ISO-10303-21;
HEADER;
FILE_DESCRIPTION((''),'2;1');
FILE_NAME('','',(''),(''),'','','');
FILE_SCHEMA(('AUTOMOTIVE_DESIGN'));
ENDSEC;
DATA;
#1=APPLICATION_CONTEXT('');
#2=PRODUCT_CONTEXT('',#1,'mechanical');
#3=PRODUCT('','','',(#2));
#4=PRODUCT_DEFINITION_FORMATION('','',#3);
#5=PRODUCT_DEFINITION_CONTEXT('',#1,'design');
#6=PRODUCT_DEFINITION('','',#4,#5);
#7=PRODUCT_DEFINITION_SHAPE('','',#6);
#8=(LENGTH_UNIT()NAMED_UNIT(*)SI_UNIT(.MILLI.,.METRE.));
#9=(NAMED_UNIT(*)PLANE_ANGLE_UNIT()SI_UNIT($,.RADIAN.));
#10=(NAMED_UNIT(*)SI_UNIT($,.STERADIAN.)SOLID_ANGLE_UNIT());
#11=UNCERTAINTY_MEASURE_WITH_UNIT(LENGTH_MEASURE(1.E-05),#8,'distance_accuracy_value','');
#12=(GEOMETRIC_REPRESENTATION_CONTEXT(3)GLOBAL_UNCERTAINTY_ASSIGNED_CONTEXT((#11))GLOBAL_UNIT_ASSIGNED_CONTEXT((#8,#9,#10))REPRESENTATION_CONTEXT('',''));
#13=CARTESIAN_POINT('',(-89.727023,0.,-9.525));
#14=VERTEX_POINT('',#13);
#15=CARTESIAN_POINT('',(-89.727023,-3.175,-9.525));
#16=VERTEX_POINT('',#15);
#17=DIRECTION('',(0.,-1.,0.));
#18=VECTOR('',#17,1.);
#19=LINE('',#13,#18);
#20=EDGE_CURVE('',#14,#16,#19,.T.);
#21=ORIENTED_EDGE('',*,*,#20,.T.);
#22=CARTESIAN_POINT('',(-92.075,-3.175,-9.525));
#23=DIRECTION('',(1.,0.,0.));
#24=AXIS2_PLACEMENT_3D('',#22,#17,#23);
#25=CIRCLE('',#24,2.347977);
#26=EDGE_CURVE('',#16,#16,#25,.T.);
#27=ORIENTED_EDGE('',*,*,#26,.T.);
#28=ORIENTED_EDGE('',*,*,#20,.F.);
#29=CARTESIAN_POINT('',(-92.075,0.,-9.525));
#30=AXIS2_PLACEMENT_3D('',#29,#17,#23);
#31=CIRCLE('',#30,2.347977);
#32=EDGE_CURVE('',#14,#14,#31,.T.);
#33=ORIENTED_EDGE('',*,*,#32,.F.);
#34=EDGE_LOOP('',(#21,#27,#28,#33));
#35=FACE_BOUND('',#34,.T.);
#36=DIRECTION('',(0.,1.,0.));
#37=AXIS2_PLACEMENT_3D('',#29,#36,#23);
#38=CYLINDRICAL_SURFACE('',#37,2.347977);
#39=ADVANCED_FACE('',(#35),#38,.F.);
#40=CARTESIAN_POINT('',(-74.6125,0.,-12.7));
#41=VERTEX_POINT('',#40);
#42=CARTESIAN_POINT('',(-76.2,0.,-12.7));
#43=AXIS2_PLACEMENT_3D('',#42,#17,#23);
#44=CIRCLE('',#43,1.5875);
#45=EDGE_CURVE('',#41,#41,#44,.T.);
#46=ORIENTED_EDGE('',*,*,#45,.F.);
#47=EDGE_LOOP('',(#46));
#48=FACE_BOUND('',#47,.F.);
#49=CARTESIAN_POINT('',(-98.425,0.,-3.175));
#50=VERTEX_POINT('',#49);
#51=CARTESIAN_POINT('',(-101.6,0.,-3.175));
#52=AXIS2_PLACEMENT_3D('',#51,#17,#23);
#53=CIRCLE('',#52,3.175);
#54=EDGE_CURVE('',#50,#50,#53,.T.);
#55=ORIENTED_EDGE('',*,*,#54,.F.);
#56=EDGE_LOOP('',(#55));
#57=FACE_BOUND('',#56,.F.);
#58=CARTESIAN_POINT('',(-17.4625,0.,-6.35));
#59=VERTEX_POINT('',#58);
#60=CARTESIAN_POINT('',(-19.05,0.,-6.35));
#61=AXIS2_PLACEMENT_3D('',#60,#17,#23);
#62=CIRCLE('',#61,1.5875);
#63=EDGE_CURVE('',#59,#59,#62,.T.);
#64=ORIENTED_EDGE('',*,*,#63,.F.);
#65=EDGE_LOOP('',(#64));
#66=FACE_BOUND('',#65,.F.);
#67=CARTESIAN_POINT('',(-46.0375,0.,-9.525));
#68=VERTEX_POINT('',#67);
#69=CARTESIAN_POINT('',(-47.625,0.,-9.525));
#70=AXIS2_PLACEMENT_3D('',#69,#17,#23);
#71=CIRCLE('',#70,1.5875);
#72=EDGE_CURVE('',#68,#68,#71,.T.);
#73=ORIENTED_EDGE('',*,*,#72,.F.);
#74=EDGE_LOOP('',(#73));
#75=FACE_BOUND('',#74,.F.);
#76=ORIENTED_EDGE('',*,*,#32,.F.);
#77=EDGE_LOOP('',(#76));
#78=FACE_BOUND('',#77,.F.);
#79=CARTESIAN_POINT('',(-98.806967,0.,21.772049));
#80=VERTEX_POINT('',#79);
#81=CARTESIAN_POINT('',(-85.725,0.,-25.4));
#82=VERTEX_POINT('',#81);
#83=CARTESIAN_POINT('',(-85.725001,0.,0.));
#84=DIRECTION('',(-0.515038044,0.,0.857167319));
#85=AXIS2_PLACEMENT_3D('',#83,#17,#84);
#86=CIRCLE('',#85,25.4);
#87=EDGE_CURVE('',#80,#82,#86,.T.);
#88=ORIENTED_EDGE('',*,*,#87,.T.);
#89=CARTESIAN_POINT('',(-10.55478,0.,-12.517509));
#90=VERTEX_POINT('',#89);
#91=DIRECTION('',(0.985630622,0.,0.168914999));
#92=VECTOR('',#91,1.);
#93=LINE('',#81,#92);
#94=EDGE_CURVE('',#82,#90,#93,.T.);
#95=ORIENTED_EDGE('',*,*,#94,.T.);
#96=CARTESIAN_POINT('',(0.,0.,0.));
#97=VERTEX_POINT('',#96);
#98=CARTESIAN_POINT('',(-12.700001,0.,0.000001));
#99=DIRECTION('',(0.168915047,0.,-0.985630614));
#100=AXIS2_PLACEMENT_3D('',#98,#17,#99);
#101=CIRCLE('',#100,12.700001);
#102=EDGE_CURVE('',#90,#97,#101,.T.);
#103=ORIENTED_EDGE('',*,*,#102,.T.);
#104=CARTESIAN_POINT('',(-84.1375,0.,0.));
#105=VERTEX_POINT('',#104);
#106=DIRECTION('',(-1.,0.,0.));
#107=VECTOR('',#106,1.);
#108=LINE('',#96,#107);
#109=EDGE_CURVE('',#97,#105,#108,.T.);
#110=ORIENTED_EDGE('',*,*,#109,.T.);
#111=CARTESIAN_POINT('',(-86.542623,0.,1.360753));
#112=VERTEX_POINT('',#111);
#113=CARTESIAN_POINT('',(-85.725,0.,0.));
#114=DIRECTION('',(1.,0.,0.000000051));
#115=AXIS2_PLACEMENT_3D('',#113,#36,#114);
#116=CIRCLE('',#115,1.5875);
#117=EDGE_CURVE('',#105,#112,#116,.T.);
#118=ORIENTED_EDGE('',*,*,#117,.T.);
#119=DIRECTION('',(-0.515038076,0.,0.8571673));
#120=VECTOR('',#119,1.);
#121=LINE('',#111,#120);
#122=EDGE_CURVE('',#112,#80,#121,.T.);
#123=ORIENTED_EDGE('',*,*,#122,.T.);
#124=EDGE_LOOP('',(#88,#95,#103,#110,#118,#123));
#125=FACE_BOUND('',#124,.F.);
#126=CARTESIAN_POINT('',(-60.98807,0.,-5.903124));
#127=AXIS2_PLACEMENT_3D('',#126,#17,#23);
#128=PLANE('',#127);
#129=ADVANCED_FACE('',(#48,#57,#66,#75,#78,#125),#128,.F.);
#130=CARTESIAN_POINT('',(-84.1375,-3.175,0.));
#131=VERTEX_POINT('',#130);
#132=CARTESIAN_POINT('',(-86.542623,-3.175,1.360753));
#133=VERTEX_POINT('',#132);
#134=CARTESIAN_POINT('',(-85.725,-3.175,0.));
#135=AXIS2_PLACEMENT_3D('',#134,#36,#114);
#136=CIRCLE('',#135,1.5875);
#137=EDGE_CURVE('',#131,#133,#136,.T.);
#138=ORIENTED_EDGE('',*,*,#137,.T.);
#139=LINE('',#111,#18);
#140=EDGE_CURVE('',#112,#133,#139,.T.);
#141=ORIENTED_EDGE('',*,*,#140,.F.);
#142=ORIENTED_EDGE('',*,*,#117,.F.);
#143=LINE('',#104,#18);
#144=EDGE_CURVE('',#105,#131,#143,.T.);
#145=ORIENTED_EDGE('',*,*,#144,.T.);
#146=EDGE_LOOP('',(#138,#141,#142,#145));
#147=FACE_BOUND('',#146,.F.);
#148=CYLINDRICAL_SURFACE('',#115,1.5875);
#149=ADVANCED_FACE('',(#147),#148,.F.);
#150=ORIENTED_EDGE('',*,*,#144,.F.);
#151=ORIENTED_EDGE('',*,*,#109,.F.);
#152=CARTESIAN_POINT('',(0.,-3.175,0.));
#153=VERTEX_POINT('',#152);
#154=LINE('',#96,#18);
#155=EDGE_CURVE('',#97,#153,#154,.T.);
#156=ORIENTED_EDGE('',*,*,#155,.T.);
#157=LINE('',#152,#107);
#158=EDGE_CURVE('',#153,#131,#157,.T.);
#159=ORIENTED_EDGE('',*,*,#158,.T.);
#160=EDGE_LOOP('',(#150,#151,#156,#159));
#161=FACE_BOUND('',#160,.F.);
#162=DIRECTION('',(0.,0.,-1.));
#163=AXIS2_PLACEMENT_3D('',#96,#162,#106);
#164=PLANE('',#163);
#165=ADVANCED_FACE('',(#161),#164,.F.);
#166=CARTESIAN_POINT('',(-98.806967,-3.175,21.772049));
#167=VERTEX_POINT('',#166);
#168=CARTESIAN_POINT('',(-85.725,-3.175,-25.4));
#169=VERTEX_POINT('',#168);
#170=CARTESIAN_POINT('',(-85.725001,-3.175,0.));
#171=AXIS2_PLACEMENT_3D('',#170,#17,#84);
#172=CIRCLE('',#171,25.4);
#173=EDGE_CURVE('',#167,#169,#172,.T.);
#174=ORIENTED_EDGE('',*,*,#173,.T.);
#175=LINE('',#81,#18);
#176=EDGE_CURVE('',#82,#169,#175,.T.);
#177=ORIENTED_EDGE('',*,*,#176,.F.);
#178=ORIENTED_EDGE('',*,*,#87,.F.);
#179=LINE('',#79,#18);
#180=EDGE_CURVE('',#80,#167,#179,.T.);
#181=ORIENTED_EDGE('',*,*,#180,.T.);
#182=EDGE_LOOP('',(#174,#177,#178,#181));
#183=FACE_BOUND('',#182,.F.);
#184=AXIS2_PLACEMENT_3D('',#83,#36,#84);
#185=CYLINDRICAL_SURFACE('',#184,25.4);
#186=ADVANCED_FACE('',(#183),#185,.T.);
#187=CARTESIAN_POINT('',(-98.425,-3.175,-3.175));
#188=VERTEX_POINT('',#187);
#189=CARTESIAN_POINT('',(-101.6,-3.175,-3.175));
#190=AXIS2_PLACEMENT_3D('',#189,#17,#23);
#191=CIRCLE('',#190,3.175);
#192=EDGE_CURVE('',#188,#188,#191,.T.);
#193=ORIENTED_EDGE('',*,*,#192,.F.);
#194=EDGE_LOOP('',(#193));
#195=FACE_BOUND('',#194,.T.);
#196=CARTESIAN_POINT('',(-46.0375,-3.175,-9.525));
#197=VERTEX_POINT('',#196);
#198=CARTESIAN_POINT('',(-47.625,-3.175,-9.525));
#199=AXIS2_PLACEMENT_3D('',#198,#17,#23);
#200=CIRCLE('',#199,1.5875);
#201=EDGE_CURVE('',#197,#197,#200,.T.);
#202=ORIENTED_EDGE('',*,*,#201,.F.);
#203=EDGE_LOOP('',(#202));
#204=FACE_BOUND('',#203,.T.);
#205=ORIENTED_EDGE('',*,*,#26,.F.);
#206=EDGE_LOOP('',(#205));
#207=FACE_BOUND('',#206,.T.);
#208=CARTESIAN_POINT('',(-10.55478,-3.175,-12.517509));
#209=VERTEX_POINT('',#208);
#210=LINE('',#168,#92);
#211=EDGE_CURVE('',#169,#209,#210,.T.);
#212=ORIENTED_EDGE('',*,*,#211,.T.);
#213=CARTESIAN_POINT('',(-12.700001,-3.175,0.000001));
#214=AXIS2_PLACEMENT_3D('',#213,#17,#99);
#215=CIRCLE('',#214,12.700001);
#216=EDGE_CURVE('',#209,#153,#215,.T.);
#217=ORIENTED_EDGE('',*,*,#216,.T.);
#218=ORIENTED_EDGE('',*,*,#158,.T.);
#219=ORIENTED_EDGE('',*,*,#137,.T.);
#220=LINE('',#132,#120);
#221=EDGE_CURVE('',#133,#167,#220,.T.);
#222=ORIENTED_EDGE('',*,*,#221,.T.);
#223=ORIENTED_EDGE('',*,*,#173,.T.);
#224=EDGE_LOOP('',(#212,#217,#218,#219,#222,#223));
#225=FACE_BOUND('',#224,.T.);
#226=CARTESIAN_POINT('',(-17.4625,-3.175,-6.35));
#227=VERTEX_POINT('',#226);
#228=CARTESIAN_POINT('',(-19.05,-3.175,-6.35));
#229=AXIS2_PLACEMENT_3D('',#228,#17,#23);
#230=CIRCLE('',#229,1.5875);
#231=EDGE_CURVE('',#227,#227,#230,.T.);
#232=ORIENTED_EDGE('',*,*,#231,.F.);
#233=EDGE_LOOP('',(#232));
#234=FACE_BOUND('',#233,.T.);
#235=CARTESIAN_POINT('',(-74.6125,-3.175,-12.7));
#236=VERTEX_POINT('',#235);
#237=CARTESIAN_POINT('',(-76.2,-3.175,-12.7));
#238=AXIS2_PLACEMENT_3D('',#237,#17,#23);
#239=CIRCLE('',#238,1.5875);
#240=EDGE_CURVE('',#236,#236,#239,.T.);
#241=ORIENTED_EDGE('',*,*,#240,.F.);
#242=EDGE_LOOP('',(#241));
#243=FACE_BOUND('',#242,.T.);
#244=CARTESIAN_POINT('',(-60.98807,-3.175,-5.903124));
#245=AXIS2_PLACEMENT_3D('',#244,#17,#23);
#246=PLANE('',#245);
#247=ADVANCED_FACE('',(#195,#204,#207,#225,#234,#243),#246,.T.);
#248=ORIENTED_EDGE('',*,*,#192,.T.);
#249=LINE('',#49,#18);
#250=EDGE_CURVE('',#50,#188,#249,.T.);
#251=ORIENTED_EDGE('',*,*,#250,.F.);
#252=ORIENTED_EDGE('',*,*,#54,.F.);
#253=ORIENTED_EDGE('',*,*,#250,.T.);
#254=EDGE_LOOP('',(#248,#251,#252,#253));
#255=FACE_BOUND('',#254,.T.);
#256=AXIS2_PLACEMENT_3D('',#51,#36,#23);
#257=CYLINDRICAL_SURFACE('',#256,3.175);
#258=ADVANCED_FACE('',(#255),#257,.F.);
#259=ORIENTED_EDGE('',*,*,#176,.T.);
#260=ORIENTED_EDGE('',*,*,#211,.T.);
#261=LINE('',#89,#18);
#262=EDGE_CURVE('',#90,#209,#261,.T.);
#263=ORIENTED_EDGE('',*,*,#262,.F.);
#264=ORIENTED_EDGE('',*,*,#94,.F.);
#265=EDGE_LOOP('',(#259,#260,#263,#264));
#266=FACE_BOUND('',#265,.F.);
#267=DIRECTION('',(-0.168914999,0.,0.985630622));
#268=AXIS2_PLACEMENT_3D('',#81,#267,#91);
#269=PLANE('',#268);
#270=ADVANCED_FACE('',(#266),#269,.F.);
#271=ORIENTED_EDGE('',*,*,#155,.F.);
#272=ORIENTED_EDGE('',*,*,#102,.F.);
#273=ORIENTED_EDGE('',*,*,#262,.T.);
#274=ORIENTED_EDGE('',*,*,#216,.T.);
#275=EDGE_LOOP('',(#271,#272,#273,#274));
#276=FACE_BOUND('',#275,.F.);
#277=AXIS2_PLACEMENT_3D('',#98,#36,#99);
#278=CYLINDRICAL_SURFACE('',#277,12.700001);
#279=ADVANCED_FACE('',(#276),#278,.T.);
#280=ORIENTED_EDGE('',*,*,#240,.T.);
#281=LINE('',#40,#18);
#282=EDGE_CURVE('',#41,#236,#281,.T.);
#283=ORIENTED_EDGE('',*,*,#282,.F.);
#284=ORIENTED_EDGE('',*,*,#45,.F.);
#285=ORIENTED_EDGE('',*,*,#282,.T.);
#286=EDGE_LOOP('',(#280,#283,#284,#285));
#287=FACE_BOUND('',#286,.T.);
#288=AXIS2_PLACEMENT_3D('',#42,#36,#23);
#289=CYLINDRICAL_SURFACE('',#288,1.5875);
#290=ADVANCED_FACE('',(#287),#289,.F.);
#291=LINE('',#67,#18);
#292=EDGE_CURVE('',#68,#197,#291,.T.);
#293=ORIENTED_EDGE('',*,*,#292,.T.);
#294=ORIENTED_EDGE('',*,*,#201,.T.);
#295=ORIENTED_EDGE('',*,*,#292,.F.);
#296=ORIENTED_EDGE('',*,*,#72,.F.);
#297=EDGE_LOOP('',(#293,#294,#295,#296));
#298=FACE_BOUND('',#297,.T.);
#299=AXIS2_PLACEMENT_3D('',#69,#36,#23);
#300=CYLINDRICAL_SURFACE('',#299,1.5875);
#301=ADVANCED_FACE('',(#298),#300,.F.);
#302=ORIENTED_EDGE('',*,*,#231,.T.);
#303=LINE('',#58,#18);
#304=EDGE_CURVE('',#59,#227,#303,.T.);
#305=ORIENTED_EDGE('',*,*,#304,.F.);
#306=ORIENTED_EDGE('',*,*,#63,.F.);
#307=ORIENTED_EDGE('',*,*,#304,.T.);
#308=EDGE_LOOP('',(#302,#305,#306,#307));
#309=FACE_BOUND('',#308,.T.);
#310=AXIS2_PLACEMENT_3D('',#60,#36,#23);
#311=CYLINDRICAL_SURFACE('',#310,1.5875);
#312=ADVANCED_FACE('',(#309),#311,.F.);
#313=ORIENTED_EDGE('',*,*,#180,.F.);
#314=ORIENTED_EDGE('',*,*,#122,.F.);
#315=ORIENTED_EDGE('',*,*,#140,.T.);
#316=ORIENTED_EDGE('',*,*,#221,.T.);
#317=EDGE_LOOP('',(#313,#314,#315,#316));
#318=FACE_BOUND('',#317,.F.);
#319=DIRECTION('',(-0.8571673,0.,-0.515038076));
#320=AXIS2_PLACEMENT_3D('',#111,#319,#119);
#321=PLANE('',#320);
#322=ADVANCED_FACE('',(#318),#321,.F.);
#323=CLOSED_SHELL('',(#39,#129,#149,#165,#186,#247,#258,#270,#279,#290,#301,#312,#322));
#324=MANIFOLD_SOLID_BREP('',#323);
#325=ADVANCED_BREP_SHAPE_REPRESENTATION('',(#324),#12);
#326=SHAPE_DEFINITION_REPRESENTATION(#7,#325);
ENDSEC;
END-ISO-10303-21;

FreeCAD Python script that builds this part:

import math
import FreeCAD as App
import Part
import Sketcher
from FreeCAD import Vector
Q = App.Units.Quantity

doc = App.newDocument("Part")
body = doc.addObject("PartDesign::Body", "Body")

# Sketch on XZ plane
sketch1 = body.newObject("Sketcher::SketchObject", "Sketch")
sketch1.AttachmentSupport = (doc.getObject("XZ_Plane"), [""])
sketch1.MapMode = "FlatFace"
sketch1.addGeometry(Part.LineSegment(Vector(-85.725, -25.4, 0), Vector(-10.55478, -12.517509, 0)), False)
sketch1.addGeometry(Part.ArcOfCircle(Part.Circle(Vector(-12.700001, 0.000001, 0), Vector(0, 0, 1), 12.700001), math.radians(-80.275256), math.radians(-0.000005)), False)
sketch1.addGeometry(Part.LineSegment(Vector(0, 0, 0), Vector(-84.1375, 0, 0)), False)
sketch1.addGeometry(Part.ArcOfCircle(Part.Circle(Vector(-85.725, 0, 0), Vector(0, 0, 1), 1.5875), math.radians(121.000001), math.radians(360.000003)), False)
sketch1.addGeometry(Part.LineSegment(Vector(-86.542623, 1.360753, 0), Vector(-98.806967, 21.772049, 0)), False)
sketch1.addGeometry(Part.ArcOfCircle(Part.Circle(Vector(-85.725001, 0, 0), Vector(0, 0, 1), 25.4), math.radians(120.999998), math.radians(270.000002)), False)
sketch1.addGeometry(Part.Circle(Vector(-76.2, -12.7, 0), Vector(0, 0, 1), 1.5875), False)
sketch1.addGeometry(Part.Circle(Vector(-92.075, -9.525, 0), Vector(0, 0, 1), 2.347977), False)
sketch1.addGeometry(Part.Circle(Vector(-47.625, -9.525, 0), Vector(0, 0, 1), 1.5875), False)
sketch1.addGeometry(Part.Circle(Vector(-101.6, -3.175, 0), Vector(0, 0, 1), 3.175), False)
sketch1.addGeometry(Part.Circle(Vector(-19.05, -6.35, 0), Vector(0, 0, 1), 1.5875), False)
sketch1.addConstraint(Sketcher.Constraint("Tangent", 0, 2, 1, 1))
sketch1.addConstraint(Sketcher.Constraint("Coincident", 1, 2, 2, 1))
sketch1.addConstraint(Sketcher.Constraint("Coincident", 2, 2, 3, 2))
sketch1.addConstraint(Sketcher.Constraint("Coincident", 3, 1, 4, 1))
sketch1.addConstraint(Sketcher.Constraint("Coincident", 4, 2, 5, 1))
sketch1.addConstraint(Sketcher.Constraint("Coincident", 5, 2, 0, 1))
sketch1.addConstraint(Sketcher.Constraint("Horizontal", 2))
sketch1.addConstraint(Sketcher.Constraint("Coincident", 1, 2, -1, 1))
sketch1.addConstraint(Sketcher.Constraint("Coincident", 5, 3, 3, 3))
sketch1.addConstraint(Sketcher.Constraint("Equal", 3, 6))
sketch1.addConstraint(Sketcher.Constraint("Equal", 6, 8))
sketch1.addConstraint(Sketcher.Constraint("Equal", 8, 10))
sketch1.addConstraint(Sketcher.Constraint("PointOnObject", 1, 3, -1))
sketch1.addConstraint(Sketcher.Constraint("PointOnObject", 3, 3, -1))
sketch1.addConstraint(Sketcher.Constraint("Horizontal", 7, 3, 8, 3))
sketch1.addConstraint(Sketcher.Constraint("Vertical", 3, 3, 5, 2))
sketch1.addConstraint(Sketcher.Constraint("Radius", 5, Q("1 in")))
sketch1.addConstraint(Sketcher.Constraint("Radius", 1, Q("0.5000001 in")))
sketch1.addConstraint(Sketcher.Constraint("Diameter", 9, Q("0.25 in")))
sketch1.addConstraint(Sketcher.Constraint("Diameter", 6, Q("0.125 in")))
sketch1.addConstraint(Sketcher.Constraint("DistanceX", 6, 3, -1, 1, Q("3 in")))
sketch1.addConstraint(Sketcher.Constraint("DistanceX", 9, 3, -1, 1, Q("4 in")))
sketch1.addConstraint(Sketcher.Constraint("Angle", 4, Q("121 deg")))
sketch1.addConstraint(Sketcher.Constraint("DistanceY", 6, 3, -1, 1, Q("0.5 in")))
sketch1.addConstraint(Sketcher.Constraint("DistanceX", 3, 3, 8, 3, Q("1.5 in")))
sketch1.addConstraint(Sketcher.Constraint("DistanceX", 2, 2, 2, 1, Q("3.3125 in")))
sketch1.addConstraint(Sketcher.Constraint("DistanceX", 10, 3, -1, 1, Q("0.75 in")))
sketch1.addConstraint(Sketcher.Constraint("DistanceY", 10, 3, -1, 1, Q("0.25 in")))
sketch1.addConstraint(Sketcher.Constraint("DistanceX", 7, 3, 5, 3, Q("0.25 in")))
sketch1.addConstraint(Sketcher.Constraint("DistanceY", 7, 3, 9, 3, Q("0.25 in")))
sketch1.addConstraint(Sketcher.Constraint("DistanceY", 7, 3, -1, 1, Q("0.375 in")))
sketch1.addConstraint(Sketcher.Constraint("Diameter", 7, Q("4.695954 mm")))
sketch1.addConstraint(Sketcher.Constraint("DistanceY", -1, 1, 4, 2, Q("21.772049 mm")))
pad1 = body.newObject("PartDesign::Pad", "Pad")
pad1.Profile = sketch1
pad1.Length = Q("0.125 in")

doc.recompute()
